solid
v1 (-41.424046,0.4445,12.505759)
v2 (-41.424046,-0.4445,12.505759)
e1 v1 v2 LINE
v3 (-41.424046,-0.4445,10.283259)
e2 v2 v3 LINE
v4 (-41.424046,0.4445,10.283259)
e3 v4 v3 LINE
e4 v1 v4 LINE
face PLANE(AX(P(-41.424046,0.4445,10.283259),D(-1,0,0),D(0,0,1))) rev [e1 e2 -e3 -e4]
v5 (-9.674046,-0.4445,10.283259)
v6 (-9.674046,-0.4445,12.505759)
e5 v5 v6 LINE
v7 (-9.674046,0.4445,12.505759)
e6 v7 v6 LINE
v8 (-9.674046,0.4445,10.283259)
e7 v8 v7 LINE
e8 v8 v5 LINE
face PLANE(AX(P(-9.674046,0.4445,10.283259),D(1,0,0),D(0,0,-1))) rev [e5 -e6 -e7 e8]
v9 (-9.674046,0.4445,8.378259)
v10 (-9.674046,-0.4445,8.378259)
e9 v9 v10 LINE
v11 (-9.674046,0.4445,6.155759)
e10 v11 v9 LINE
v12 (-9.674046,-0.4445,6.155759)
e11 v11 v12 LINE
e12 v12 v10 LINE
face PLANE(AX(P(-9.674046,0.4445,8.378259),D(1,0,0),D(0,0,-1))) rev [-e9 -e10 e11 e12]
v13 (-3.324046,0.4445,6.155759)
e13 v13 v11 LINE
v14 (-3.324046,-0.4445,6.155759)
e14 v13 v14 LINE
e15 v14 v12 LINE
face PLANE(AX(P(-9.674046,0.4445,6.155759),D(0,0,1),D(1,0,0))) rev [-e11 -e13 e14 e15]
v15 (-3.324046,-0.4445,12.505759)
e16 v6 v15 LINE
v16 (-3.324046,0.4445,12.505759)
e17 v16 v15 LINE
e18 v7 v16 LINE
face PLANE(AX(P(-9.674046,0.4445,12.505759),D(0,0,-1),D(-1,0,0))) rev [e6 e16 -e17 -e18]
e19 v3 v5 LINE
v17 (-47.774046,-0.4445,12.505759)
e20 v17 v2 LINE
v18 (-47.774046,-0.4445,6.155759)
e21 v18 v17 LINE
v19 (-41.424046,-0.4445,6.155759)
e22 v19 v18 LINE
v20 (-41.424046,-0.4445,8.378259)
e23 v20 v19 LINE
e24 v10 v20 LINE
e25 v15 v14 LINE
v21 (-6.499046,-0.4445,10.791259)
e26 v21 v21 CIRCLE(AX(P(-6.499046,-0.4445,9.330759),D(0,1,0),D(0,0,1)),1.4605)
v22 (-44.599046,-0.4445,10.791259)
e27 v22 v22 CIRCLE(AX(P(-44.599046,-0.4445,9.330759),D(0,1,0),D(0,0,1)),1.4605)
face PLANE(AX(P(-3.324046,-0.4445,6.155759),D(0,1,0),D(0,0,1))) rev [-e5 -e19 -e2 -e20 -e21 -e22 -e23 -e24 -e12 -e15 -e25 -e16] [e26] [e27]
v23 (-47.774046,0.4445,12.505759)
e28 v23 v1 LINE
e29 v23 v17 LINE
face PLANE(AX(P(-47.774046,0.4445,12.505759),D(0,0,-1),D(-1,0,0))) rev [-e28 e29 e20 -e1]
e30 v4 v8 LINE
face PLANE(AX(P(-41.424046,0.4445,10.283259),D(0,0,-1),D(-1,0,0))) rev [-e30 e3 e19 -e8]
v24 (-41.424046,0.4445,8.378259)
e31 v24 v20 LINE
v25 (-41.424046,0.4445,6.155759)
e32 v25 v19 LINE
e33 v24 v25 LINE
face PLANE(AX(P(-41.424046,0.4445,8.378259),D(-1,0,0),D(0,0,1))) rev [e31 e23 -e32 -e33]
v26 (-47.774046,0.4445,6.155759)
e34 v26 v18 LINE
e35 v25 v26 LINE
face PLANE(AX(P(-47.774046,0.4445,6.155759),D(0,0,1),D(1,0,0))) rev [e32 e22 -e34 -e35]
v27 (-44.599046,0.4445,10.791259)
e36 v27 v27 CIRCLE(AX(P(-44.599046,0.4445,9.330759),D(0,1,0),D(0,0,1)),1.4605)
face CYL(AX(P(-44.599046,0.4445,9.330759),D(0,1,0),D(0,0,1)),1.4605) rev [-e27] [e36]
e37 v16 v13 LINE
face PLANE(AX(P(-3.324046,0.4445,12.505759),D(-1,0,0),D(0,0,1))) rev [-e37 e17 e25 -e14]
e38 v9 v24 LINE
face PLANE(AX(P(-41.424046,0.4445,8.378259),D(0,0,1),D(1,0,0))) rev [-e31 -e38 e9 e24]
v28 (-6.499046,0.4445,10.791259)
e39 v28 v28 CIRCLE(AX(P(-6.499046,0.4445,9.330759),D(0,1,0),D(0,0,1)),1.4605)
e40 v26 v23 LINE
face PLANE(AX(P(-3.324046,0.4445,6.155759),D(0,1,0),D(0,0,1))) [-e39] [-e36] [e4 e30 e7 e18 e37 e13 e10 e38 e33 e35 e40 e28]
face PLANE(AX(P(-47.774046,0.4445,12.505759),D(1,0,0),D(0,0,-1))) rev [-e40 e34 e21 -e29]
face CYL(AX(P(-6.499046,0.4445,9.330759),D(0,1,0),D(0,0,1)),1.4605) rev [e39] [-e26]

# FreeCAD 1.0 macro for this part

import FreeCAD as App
import Part
import Sketcher

V = App.Vector
Q = App.Units.Quantity

doc = App.newDocument("Part")
body = doc.addObject("PartDesign::Body", "Body")

sketch1 = body.newObject("Sketcher::SketchObject", "Sketch")
sketch1.AttachmentSupport = (doc.getObject("XZ_Plane"), [""])
sketch1.MapMode = "FlatFace"
sketch1.addGeometry([
    Part.LineSegment(V(-41.4, 12.5, 0), V(-41.4, 10.3, 0)),
    Part.LineSegment(V(-41.4, 10.3, 0), V(-9.7, 10.3, 0)),
    Part.LineSegment(V(-9.7, 10.3, 0), V(-9.7, 12.5, 0)),
    Part.LineSegment(V(-9.7, 12.5, 0), V(-3.3, 12.5, 0)),
    Part.LineSegment(V(-3.3, 12.5, 0), V(-3.3, 6.2, 0)),
    Part.LineSegment(V(-3.3, 6.2, 0), V(-9.7, 6.2, 0)),
    Part.LineSegment(V(-9.7, 6.2, 0), V(-9.7, 8.4, 0)),
    Part.LineSegment(V(-9.7, 8.4, 0), V(-41.4, 8.4, 0)),
    Part.LineSegment(V(-41.4, 8.4, 0), V(-41.4, 6.2, 0)),
    Part.LineSegment(V(-41.4, 6.2, 0), V(-47.8, 6.2, 0)),
    Part.LineSegment(V(-47.8, 6.2, 0), V(-47.8, 12.5, 0)),
    Part.LineSegment(V(-47.8, 12.5, 0), V(-41.4, 12.5, 0)),
], False)
sketch1.addConstraint([
    Sketcher.Constraint("Coincident", 0, 2, 1, 1),
    Sketcher.Constraint("Coincident", 1, 2, 2, 1),
    Sketcher.Constraint("Coincident", 2, 2, 3, 1),
    Sketcher.Constraint("Coincident", 3, 2, 4, 1),
    Sketcher.Constraint("Coincident", 4, 2, 5, 1),
    Sketcher.Constraint("Coincident", 5, 2, 6, 1),
    Sketcher.Constraint("Coincident", 6, 2, 7, 1),
    Sketcher.Constraint("Coincident", 7, 2, 8, 1),
    Sketcher.Constraint("Coincident", 8, 2, 9, 1),
    Sketcher.Constraint("Coincident", 9, 2, 10, 1),
    Sketcher.Constraint("Coincident", 10, 2, 11, 1),
    Sketcher.Constraint("Coincident", 11, 2, 0, 1),
    Sketcher.Constraint("Vertical", 0),
    Sketcher.Constraint("Horizontal", 1),
    Sketcher.Constraint("Vertical", 2),
    Sketcher.Constraint("Horizontal", 3),
    Sketcher.Constraint("Vertical", 4),
    Sketcher.Constraint("Horizontal", 5),
    Sketcher.Constraint("Vertical", 6),
    Sketcher.Constraint("Horizontal", 7),
    Sketcher.Constraint("Vertical", 8),
    Sketcher.Constraint("Horizontal", 9),
    Sketcher.Constraint("Vertical", 10),
    Sketcher.Constraint("Horizontal", 11),
    Sketcher.Constraint("Horizontal", 5, 2, 8, 2),
    Sketcher.Constraint("Horizontal", 3, 2, 10, 2),
    Sketcher.Constraint("Vertical", 2, 2, 5, 2),
    Sketcher.Constraint("Vertical", 0, 2, 7, 2),
    Sketcher.Constraint("Equal", 5, 9),
    Sketcher.Constraint("Equal", 11, 4),
    Sketcher.Constraint("Equal", 2, 6),
    Sketcher.Constraint("DistanceX", 1, 1, 1, 2, Q("1.25 in")),
    Sketcher.Constraint("DistanceX", 3, 1, 3, 2, Q("0.25 in")),
    Sketcher.Constraint("DistanceY", 0, 2, 0, 1, Q("0.0875 in")),
    Sketcher.Constraint("DistanceY", -1, 1, 0, 2, 10.283259),
    Sketcher.Constraint("DistanceX", 0, 2, -1, 1, 41.424046),
])
pad1 = body.newObject("PartDesign::Pad", "Pad")
pad1.Profile = sketch1
pad1.Length = Q("0.035 in")
pad1.Midplane = True

sketch2 = body.newObject("Sketcher::SketchObject", "Sketch001")
sketch2.AttachmentSupport = (doc.getObject("XZ_Plane"), [""])
sketch2.MapMode = "FlatFace"
sketch2.AttachmentOffset = App.Placement(V(0, 0, -0.0175 * 25.4), App.Rotation())
sketch2.addGeometry(Part.Circle(V(-44.6, 9.3, 0), V(0, 0, 1), 1.5), False)
sketch2.addConstraint([
    Sketcher.Constraint("Diameter", 0, Q("0.115 in")),
    Sketcher.Constraint("DistanceY", -1, 1, 0, 3, 9.330759),
    Sketcher.Constraint("DistanceX", 0, 3, -1, 1, 44.599046),
])
doc.recompute()
hole = body.newObject("PartDesign::Hole", "Hole")
hole.Profile = sketch2
hole.ThreadType = "None"
hole.Diameter = Q("0.115 in")
hole.DepthType = "ThroughAll"
hole.Reversed = True
doc.recompute()

datumplane = body.newObject("PartDesign::Plane", "DatumPlane")
datumplane.AttachmentSupport = (doc.getObject("YZ_Plane"), [""])
datumplane.MapMode = "FlatFace"
datumplane.AttachmentOffset = App.Placement(V(0, 0, -25.549046), App.Rotation())
mirrored = body.newObject("PartDesign::Mirrored", "Mirrored")
mirrored.Originals = [hole]
mirrored.MirrorPlane = (datumplane, [""])
body.Tip = mirrored

doc.recompute()
